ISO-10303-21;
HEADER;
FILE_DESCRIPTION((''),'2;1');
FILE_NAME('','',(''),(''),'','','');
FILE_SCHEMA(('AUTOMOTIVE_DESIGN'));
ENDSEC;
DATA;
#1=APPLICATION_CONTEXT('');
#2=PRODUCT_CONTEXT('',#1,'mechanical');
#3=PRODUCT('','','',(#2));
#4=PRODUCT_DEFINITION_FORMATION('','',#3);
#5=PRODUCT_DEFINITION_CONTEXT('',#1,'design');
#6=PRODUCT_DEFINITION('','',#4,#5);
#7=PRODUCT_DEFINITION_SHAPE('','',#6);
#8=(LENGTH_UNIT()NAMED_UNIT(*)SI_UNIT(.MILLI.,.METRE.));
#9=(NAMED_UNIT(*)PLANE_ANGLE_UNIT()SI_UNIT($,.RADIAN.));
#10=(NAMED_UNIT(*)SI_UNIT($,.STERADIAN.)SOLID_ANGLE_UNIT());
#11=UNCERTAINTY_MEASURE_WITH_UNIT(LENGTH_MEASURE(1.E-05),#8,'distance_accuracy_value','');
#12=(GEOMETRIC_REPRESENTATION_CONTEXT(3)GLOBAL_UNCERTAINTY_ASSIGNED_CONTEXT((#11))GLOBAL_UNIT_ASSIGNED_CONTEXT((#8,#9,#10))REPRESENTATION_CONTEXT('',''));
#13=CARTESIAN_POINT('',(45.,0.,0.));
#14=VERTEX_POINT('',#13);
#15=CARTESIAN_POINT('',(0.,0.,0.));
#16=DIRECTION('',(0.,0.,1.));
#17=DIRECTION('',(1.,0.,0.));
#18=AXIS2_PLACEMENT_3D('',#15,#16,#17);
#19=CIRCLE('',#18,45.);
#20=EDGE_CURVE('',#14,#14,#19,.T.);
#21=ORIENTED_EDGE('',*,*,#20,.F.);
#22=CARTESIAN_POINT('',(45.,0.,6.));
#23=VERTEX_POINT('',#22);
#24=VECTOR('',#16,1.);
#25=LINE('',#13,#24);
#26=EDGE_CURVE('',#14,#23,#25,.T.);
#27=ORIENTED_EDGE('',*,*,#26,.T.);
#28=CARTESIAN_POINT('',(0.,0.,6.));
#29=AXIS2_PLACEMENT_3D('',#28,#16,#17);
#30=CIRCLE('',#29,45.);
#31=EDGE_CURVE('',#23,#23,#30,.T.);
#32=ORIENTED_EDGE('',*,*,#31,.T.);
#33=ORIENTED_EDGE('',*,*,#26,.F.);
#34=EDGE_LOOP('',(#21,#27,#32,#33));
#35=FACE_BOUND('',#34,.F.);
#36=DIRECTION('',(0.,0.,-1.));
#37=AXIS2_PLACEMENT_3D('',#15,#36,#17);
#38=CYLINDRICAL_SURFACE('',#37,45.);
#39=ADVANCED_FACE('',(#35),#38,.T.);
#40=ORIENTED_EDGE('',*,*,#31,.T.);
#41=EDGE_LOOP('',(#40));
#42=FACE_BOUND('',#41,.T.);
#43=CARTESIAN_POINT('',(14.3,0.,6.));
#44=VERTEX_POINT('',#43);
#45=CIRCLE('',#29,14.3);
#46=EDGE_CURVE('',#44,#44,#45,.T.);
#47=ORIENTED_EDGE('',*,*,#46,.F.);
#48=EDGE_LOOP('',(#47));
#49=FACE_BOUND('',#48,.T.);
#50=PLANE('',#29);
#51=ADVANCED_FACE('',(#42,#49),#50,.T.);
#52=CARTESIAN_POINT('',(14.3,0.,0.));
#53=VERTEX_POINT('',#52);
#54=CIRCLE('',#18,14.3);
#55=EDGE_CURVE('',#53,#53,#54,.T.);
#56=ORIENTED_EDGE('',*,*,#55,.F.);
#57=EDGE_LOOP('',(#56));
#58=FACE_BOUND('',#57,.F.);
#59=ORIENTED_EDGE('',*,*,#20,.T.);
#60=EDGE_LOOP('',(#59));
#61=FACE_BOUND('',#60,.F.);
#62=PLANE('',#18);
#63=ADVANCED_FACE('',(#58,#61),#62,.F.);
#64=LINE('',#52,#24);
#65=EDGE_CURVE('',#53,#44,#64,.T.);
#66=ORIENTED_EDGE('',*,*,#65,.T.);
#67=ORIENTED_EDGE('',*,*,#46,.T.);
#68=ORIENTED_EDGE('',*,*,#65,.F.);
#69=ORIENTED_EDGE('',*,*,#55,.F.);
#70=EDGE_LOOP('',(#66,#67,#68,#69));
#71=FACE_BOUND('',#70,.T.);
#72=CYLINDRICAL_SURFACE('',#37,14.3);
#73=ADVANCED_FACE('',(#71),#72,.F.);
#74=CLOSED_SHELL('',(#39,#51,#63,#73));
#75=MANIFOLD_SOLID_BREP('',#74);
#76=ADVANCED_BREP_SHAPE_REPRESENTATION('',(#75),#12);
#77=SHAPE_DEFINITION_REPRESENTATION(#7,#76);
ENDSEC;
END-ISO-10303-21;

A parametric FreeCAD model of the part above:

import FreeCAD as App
import Part
import Sketcher
from FreeCAD import Vector

doc = App.newDocument("Part")
params = doc.addObject("Spreadsheet::Sheet", "Params")
for row, (alias, value) in enumerate([
    ("sketch1_diameter", "90 mm"),
    ("sketch1_diameter2", "28.6 mm"),
    ("pad1_length", "6 mm"),
], start=1):
    params.set(f"A{row}", alias)
    params.set(f"B{row}", "=" + value)
    params.setAlias(f"B{row}", alias)

body = doc.addObject("PartDesign::Body", "Body")

sketch1 = body.newObject("Sketcher::SketchObject", "Sketch")
sketch1.AttachmentSupport = (doc.getObject("XY_Plane"), [""])
sketch1.MapMode = "FlatFace"
sketch1.addGeometry(Part.Circle(Vector(0, 0, 0), Vector(0, 0, 1), 45), False)
sketch1.addGeometry(Part.Circle(Vector(0, 0, 0), Vector(0, 0, 1), 14), False)
sketch1.addConstraint(Sketcher.Constraint("Coincident", 0, 3, -1, 1))
sketch1.addConstraint(Sketcher.Constraint("Coincident", 1, 3, -1, 1))
sketch1.addConstraint(Sketcher.Constraint("Diameter", 0, 90.0))
sketch1.addConstraint(Sketcher.Constraint("Diameter", 1, 28.6))
sketch1.setExpression("Constraints[2]", "Params.sketch1_diameter")
sketch1.setExpression("Constraints[3]", "Params.sketch1_diameter2")
pad1 = body.newObject("PartDesign::Pad", "Pad")
pad1.Profile = sketch1
pad1.setExpression("Length", "Params.pad1_length")

doc.recompute()
